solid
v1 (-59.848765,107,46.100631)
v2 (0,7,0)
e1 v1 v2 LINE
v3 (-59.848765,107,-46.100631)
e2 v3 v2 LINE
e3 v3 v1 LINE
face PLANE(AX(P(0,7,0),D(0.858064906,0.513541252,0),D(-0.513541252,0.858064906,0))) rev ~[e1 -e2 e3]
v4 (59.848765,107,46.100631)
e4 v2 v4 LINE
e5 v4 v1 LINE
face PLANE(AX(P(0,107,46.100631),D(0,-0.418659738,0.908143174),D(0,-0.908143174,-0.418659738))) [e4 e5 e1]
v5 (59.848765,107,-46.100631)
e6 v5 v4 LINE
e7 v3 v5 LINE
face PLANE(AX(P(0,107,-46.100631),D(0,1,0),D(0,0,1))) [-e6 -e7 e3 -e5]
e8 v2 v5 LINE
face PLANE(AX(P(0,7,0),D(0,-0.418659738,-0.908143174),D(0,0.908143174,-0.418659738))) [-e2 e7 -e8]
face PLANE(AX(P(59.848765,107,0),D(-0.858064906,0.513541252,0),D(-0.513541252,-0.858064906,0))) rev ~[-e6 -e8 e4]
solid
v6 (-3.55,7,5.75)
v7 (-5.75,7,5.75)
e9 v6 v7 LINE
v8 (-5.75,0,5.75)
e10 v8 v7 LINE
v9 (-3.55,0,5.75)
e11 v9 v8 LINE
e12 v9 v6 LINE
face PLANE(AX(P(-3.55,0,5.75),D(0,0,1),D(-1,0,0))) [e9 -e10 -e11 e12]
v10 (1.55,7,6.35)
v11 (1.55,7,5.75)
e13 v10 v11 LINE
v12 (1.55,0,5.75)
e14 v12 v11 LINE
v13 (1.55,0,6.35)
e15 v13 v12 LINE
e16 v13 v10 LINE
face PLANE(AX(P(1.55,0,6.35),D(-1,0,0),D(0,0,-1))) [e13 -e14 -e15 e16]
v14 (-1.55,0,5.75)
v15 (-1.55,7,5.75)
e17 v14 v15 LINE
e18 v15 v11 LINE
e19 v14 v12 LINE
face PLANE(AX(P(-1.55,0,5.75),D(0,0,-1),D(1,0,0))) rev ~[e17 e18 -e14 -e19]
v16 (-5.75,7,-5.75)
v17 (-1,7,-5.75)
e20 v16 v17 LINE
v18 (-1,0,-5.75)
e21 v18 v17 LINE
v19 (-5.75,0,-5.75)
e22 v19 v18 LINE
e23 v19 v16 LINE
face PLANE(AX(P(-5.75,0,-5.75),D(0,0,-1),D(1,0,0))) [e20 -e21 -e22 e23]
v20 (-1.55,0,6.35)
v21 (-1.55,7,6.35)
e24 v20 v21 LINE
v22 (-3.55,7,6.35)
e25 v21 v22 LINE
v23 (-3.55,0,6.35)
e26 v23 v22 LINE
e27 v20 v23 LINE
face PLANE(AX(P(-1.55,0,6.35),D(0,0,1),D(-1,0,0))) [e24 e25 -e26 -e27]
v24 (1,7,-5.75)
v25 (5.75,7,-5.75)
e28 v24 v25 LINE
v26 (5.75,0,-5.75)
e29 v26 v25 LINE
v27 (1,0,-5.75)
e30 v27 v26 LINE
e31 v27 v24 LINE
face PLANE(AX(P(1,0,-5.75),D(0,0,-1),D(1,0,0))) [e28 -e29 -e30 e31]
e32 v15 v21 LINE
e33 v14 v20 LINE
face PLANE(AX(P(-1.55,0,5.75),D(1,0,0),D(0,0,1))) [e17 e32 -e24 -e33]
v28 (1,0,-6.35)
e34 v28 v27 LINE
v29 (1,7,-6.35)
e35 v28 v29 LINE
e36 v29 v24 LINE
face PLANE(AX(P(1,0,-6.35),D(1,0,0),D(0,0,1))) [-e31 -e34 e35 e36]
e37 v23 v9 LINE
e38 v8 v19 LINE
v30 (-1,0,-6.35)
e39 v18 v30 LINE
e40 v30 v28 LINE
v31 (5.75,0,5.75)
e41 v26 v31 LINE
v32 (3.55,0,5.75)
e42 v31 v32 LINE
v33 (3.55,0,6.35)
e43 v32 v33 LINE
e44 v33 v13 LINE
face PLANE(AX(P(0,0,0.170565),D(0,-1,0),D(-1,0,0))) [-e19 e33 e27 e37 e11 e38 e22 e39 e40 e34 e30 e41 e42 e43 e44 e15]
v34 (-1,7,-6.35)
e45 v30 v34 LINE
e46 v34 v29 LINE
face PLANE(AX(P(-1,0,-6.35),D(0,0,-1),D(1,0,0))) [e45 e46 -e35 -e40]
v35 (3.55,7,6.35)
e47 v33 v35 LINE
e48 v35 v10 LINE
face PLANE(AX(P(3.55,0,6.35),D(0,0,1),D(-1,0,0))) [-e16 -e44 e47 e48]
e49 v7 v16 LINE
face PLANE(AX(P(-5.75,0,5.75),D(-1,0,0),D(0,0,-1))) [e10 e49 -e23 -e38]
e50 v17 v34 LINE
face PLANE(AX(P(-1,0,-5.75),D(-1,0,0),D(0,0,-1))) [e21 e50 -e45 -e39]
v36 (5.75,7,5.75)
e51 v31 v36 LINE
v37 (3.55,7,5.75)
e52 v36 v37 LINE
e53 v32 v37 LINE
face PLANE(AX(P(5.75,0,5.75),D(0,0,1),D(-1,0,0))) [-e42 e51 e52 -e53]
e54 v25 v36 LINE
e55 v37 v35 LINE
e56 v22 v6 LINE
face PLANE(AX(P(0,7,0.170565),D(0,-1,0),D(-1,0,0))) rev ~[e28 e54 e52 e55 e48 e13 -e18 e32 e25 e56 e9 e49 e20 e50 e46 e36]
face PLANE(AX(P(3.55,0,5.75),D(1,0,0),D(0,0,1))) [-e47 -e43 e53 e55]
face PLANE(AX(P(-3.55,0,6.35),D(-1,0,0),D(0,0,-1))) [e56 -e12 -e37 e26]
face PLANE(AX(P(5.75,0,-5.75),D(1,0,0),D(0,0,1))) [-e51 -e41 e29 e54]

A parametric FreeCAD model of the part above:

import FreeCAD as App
import Part
import Sketcher
Q = App.Units.Quantity

doc = App.newDocument("Part")
body = doc.addObject("PartDesign::Body", "Body")

sketch1 = body.newObject("Sketcher::SketchObject", "Sketch")
sketch1.AttachmentSupport = (doc.getObject("XZ_Plane"), [""])
sketch1.MapMode = "FlatFace"
sketch1.addGeometry([
    Part.LineSegment(App.Vector(-1, -6.3, 0), App.Vector(-1, -5.8, 0)),
    Part.LineSegment(App.Vector(-1, -5.8, 0), App.Vector(-5.8, -5.8, 0)),
    Part.LineSegment(App.Vector(-5.8, -5.8, 0), App.Vector(-5.8, 5.8, 0)),
    Part.LineSegment(App.Vector(-5.8, 5.8, 0), App.Vector(-3.5, 5.8, 0)),
    Part.LineSegment(App.Vector(-3.5, 5.8, 0), App.Vector(-3.5, 6.3, 0)),
    Part.LineSegment(App.Vector(-3.5, 6.3, 0), App.Vector(-1.6, 6.3, 0)),
    Part.LineSegment(App.Vector(-1.6, 6.3, 0), App.Vector(-1.6, 5.8, 0)),
    Part.LineSegment(App.Vector(-1.6, 5.8, 0), App.Vector(1.6, 5.8, 0)),
    Part.LineSegment(App.Vector(1.6, 5.8, 0), App.Vector(1.6, 6.3, 0)),
    Part.LineSegment(App.Vector(1.6, 6.3, 0), App.Vector(3.5, 6.3, 0)),
    Part.LineSegment(App.Vector(3.5, 6.3, 0), App.Vector(3.5, 5.8, 0)),
    Part.LineSegment(App.Vector(3.5, 5.8, 0), App.Vector(5.8, 5.8, 0)),
    Part.LineSegment(App.Vector(5.8, 5.8, 0), App.Vector(5.8, -5.8, 0)),
    Part.LineSegment(App.Vector(5.8, -5.8, 0), App.Vector(1, -5.8, 0)),
    Part.LineSegment(App.Vector(1, -5.8, 0), App.Vector(1, -6.3, 0)),
    Part.LineSegment(App.Vector(1, -6.3, 0), App.Vector(-1, -6.3, 0)),
], False)
sketch1.addConstraint([
    Sketcher.Constraint("Coincident", 0, 2, 1, 1),
    Sketcher.Constraint("Coincident", 1, 2, 2, 1),
    Sketcher.Constraint("Coincident", 2, 2, 3, 1),
    Sketcher.Constraint("Coincident", 3, 2, 4, 1),
    Sketcher.Constraint("Coincident", 4, 2, 5, 1),
    Sketcher.Constraint("Coincident", 5, 2, 6, 1),
    Sketcher.Constraint("Coincident", 6, 2, 7, 1),
    Sketcher.Constraint("Coincident", 7, 2, 8, 1),
    Sketcher.Constraint("Coincident", 8, 2, 9, 1),
    Sketcher.Constraint("Coincident", 9, 2, 10, 1),
    Sketcher.Constraint("Coincident", 10, 2, 11, 1),
    Sketcher.Constraint("Coincident", 11, 2, 12, 1),
    Sketcher.Constraint("Coincident", 12, 2, 13, 1),
    Sketcher.Constraint("Coincident", 13, 2, 14, 1),
    Sketcher.Constraint("Coincident", 14, 2, 15, 1),
    Sketcher.Constraint("Coincident", 15, 2, 0, 1),
    Sketcher.Constraint("Vertical", 0),
    Sketcher.Constraint("Horizontal", 1),
    Sketcher.Constraint("Vertical", 2),
    Sketcher.Constraint("Horizontal", 3),
    Sketcher.Constraint("Vertical", 4),
    Sketcher.Constraint("Horizontal", 5),
    Sketcher.Constraint("Vertical", 6),
    Sketcher.Constraint("Horizontal", 7),
    Sketcher.Constraint("Vertical", 8),
    Sketcher.Constraint("Horizontal", 9),
    Sketcher.Constraint("Vertical", 10),
    Sketcher.Constraint("Horizontal", 11),
    Sketcher.Constraint("Vertical", 12),
    Sketcher.Constraint("Horizontal", 13),
    Sketcher.Constraint("Vertical", 14),
    Sketcher.Constraint("Horizontal", 15),
    Sketcher.Constraint("Symmetric", 1, 2, 11, 2, -1, 1),
    Sketcher.Constraint("Symmetric", 5, 2, 8, 2, -2),
    Sketcher.Constraint("Symmetric", 3, 2, 10, 2, -2),
    Sketcher.Constraint("Symmetric", 0, 2, 13, 2, -2),
    Sketcher.Constraint("Horizontal", 3, 2, 6, 2),
    Sketcher.Constraint("Equal", 9, 15),
    Sketcher.Constraint("Equal", 0, 4),
    Sketcher.Constraint("DistanceX", 5, 1, 5, 2, Q("2 mm")),
    Sketcher.Constraint("DistanceX", 3, 1, 3, 2, Q("2.2 mm")),
    Sketcher.Constraint("DistanceX", 7, 1, 7, 2, Q("3.1 mm")),
    Sketcher.Constraint("DistanceY", 0, 1, 0, 2, Q("0.6 mm")),
    Sketcher.Constraint("DistanceY", 2, 1, 2, 2, Q("11.5 mm")),
])
pad1 = body.newObject("PartDesign::Pad", "Pad")
pad1.Profile = sketch1
pad1.Length = 7
pad1.Reversed = True
body2 = doc.addObject("PartDesign::Body", "Body001")

sketch2 = body2.newObject("Sketcher::SketchObject", "Sketch001")
sketch2.AttachmentSupport = (doc.getObject("YZ_Plane001"), [""])
sketch2.MapMode = "FlatFace"
sketch2.addGeometry([
    Part.LineSegment(App.Vector(7, 0, 0), App.Vector(107, -46, 0)),
    Part.LineSegment(App.Vector(107, -46, 0), App.Vector(107, 46, 0)),
    Part.LineSegment(App.Vector(107, 46, 0), App.Vector(7, 0, 0)),
], False)
sketch2.addConstraint([
    Sketcher.Constraint("Coincident", 0, 2, 1, 1),
    Sketcher.Constraint("Coincident", 1, 2, 2, 1),
    Sketcher.Constraint("Coincident", 2, 2, 0, 1),
    Sketcher.Constraint("Vertical", 1),
    Sketcher.Constraint("PointOnObject", 2, 2, -1),
    Sketcher.Constraint("Equal", 0, 2),
    Sketcher.Constraint("DistanceX", -1, 1, 0, 2, Q("107 mm")),
    Sketcher.Constraint("DistanceX", -1, 1, 2, 2, Q("7 mm")),
    Sketcher.Constraint("Angle", 0, Q("-24.75 deg")),
])
pad2 = body2.newObject("PartDesign::Pad", "Pad001")
pad2.Profile = sketch2
pad2.Type = "TwoLengths"
pad2.Length = 100
pad2.Length2 = 100

sketch3 = body2.newObject("Sketcher::SketchObject", "Sketch002")
sketch3.AttachmentSupport = (doc.getObject("XY_Plane001"), [""])
sketch3.MapMode = "FlatFace"
sketch3.addGeometry([
    Part.LineSegment(App.Vector(-125, 132, 0), App.Vector(-125, -25, 0)),
    Part.LineSegment(App.Vector(-125, -25, 0), App.Vector(125, -25, 0)),
    Part.LineSegment(App.Vector(125, -25, 0), App.Vector(125, 132, 0)),
    Part.LineSegment(App.Vector(125, 132, 0), App.Vector(-125, 132, 0)),
    Part.LineSegment(App.Vector(60, 107, 0), App.Vector(0, 7, 0)),
    Part.LineSegment(App.Vector(0, 7, 0), App.Vector(-60, 107, 0)),
    Part.LineSegment(App.Vector(-60, 107, 0), App.Vector(60, 107, 0)),
], False)
sketch3.addConstraint([
    Sketcher.Constraint("Coincident", 0, 2, 1, 1),
    Sketcher.Constraint("Coincident", 1, 2, 2, 1),
    Sketcher.Constraint("Coincident", 2, 2, 3, 1),
    Sketcher.Constraint("Coincident", 3, 2, 0, 1),
    Sketcher.Constraint("Coincident", 4, 2, 5, 1),
    Sketcher.Constraint("Coincident", 5, 2, 6, 1),
    Sketcher.Constraint("Coincident", 6, 2, 4, 1),
    Sketcher.Constraint("Vertical", 0),
    Sketcher.Constraint("Horizontal", 1),
    Sketcher.Constraint("Vertical", 2),
    Sketcher.Constraint("Horizontal", 3),
    Sketcher.Constraint("Horizontal", 6),
    Sketcher.Constraint("PointOnObject", 4, 2, -2),
    Sketcher.Constraint("Equal", 4, 5),
    Sketcher.Constraint("DistanceY", -1, 1, 4, 2, Q("7 mm")),
    Sketcher.Constraint("DistanceY", -1, 1, 5, 2, Q("107 mm")),
    Sketcher.Constraint("Angle", 4, Q("-120.9 deg")),
    Sketcher.Constraint("DistanceX", 1, 1, 1, 2, Q("250.97 mm")),
    Sketcher.Constraint("DistanceY", 0, 2, 0, 1, Q("157.97 mm")),
    Sketcher.Constraint("DistanceX", 0, 2, -1, 1, Q("125.485 mm")),
    Sketcher.Constraint("DistanceY", 0, 2, -1, 1, Q("25.485 mm")),
])
pocket1 = body2.newObject("PartDesign::Pocket", "Pocket")
pocket1.Profile = sketch3
pocket1.Type = "ThroughAll"
pocket1.Midplane = True

doc.recompute()
